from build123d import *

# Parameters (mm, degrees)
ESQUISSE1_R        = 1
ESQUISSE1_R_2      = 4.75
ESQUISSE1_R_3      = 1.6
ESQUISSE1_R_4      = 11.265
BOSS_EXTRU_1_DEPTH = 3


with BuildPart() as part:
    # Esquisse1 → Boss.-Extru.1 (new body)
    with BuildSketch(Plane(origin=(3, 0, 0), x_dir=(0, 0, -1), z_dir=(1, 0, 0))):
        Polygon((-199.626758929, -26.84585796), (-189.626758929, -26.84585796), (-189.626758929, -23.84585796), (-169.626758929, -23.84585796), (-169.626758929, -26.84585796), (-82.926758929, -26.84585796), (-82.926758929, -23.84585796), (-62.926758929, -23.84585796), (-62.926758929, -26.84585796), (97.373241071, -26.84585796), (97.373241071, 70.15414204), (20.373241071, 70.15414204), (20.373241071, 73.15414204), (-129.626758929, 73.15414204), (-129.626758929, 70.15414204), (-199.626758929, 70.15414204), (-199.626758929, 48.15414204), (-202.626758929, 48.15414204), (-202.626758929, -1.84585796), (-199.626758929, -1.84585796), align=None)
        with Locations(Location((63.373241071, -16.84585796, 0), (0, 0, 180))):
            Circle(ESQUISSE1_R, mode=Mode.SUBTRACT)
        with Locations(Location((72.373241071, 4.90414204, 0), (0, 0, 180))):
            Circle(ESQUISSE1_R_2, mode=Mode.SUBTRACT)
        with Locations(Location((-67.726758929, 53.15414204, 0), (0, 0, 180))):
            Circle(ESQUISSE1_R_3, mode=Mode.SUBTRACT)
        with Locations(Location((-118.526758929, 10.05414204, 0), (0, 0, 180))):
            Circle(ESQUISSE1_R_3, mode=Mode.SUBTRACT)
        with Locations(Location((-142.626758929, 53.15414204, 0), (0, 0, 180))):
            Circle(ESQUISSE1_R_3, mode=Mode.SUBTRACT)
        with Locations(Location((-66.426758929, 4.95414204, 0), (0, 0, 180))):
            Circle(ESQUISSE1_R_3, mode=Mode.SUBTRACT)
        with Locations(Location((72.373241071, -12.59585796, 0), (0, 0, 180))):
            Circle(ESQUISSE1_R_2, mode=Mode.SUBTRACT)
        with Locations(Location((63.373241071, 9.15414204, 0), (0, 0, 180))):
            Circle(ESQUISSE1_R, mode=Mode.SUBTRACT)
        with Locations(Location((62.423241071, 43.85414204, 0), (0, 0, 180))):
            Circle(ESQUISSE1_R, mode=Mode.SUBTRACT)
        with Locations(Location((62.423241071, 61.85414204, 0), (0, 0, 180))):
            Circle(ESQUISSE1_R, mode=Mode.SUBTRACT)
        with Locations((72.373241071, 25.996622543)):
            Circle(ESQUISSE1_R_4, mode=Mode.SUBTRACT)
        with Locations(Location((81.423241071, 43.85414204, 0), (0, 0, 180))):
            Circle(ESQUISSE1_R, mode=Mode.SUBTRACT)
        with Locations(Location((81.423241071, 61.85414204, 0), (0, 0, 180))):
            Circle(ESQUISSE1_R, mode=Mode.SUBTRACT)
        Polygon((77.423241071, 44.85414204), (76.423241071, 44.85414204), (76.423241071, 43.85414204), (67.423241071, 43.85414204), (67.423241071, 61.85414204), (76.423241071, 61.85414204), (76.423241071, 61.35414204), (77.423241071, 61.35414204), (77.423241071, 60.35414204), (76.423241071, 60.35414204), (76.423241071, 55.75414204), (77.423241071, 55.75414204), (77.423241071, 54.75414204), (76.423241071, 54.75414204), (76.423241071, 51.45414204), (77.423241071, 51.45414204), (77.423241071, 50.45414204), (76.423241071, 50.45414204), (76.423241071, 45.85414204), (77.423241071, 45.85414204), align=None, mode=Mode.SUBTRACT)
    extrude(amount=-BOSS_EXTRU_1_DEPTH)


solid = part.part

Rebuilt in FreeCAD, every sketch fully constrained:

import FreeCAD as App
import Part
import Sketcher
Q = App.Units.Quantity


def add_polygon(sketch, points):
    """Adds a closed chain of lines whose ends are joined by coincident constraints."""
    first, n = sketch.GeometryCount, len(points)
    for a, b in zip(points, points[1:] + points[:1]):
        sketch.addGeometry(Part.LineSegment(App.Vector(*a, 0), App.Vector(*b, 0)), False)
    for i in range(n):
        sketch.addConstraint(Sketcher.Constraint("Coincident", first + i, 2, first + (i + 1) % n, 1))

doc = App.newDocument("Part")
body = doc.addObject("PartDesign::Body", "Body")

# Sketch on YZ plane
sketch1 = body.newObject("Sketcher::SketchObject", "Sketch")
sketch1.AttachmentSupport = (doc.getObject("YZ_Plane"), [""])
sketch1.MapMode = "FlatFace"
sketch1.AttachmentOffset = App.Placement(App.Vector(0, 0, 3), App.Rotation())
add_polygon(sketch1, [(-26.8, 199.6), (-26.8, 189.6), (-23.8, 189.6), (-23.8, 169.6), (-26.8, 169.6), (-26.8, 82.9), (-23.8, 82.9), (-23.8, 62.9), (-26.8, 62.9), (-26.8, -97.4), (70.2, -97.4), (70.2, -20.4), (73.2, -20.4), (73.2, 129.6), (70.2, 129.6), (70.2, 199.6), (48.2, 199.6), (48.2, 202.6), (-1.8, 202.6), (-1.8, 199.6)])  # lines 0-19
sketch1.addGeometry(Part.Circle(App.Vector(10.1, 118.5, 0), App.Vector(0, 0, 1), 1.6), False)  # 20
sketch1.addGeometry(Part.Circle(App.Vector(5, 66.4, 0), App.Vector(0, 0, 1), 1.6), False)  # 21
sketch1.addGeometry(Part.Circle(App.Vector(-16.8, -63.4, 0), App.Vector(0, 0, 1), 1), False)  # 22
sketch1.addGeometry(Part.Circle(App.Vector(-12.6, -72.4, 0), App.Vector(0, 0, 1), 4.8), False)  # 23
sketch1.addGeometry(Part.Circle(App.Vector(4.9, -72.4, 0), App.Vector(0, 0, 1), 4.8), False)  # 24
sketch1.addGeometry(Part.Circle(App.Vector(9.2, -63.4, 0), App.Vector(0, 0, 1), 1), False)  # 25
sketch1.addGeometry(Part.Circle(App.Vector(53.2, 142.6, 0), App.Vector(0, 0, 1), 1.6), False)  # 26
sketch1.addGeometry(Part.Circle(App.Vector(53.2, 67.7, 0), App.Vector(0, 0, 1), 1.6), False)  # 27
sketch1.addGeometry(Part.Circle(App.Vector(26, -72.4, 0), App.Vector(0, 0, 1), 11.3), False)  # 28
sketch1.addGeometry(Part.Circle(App.Vector(43.9, -62.4, 0), App.Vector(0, 0, 1), 1), False)  # 29
sketch1.addGeometry(Part.Circle(App.Vector(43.9, -81.4, 0), App.Vector(0, 0, 1), 1), False)  # 30
add_polygon(sketch1, [(45.9, -77.4), (44.9, -77.4), (44.9, -76.4), (43.9, -76.4), (43.9, -67.4), (61.9, -67.4), (61.9, -76.4), (61.4, -76.4), (61.4, -77.4), (60.4, -77.4), (60.4, -76.4), (55.8, -76.4), (55.8, -77.4), (54.8, -77.4), (54.8, -76.4), (51.5, -76.4), (51.5, -77.4), (50.5, -77.4), (50.5, -76.4), (45.9, -76.4)])  # lines 31-50
sketch1.addGeometry(Part.Circle(App.Vector(61.9, -62.4, 0), App.Vector(0, 0, 1), 1), False)  # 51
sketch1.addGeometry(Part.Circle(App.Vector(61.9, -81.4, 0), App.Vector(0, 0, 1), 1), False)  # 52
sketch1.addConstraint(Sketcher.Constraint("Vertical", 0))
sketch1.addConstraint(Sketcher.Constraint("Horizontal", 1))
sketch1.addConstraint(Sketcher.Constraint("Vertical", 2))
sketch1.addConstraint(Sketcher.Constraint("Horizontal", 3))
sketch1.addConstraint(Sketcher.Constraint("Vertical", 4))
sketch1.addConstraint(Sketcher.Constraint("Horizontal", 5))
sketch1.addConstraint(Sketcher.Constraint("Vertical", 6))
sketch1.addConstraint(Sketcher.Constraint("Horizontal", 7))
sketch1.addConstraint(Sketcher.Constraint("Vertical", 8))
sketch1.addConstraint(Sketcher.Constraint("Horizontal", 9))
sketch1.addConstraint(Sketcher.Constraint("Vertical", 10))
sketch1.addConstraint(Sketcher.Constraint("Horizontal", 11))
sketch1.addConstraint(Sketcher.Constraint("Vertical", 12))
sketch1.addConstraint(Sketcher.Constraint("Horizontal", 13))
sketch1.addConstraint(Sketcher.Constraint("Vertical", 14))
sketch1.addConstraint(Sketcher.Constraint("Horizontal", 15))
sketch1.addConstraint(Sketcher.Constraint("Vertical", 16))
sketch1.addConstraint(Sketcher.Constraint("Horizontal", 17))
sketch1.addConstraint(Sketcher.Constraint("Vertical", 18))
sketch1.addConstraint(Sketcher.Constraint("Horizontal", 19))
sketch1.addConstraint(Sketcher.Constraint("Horizontal", 31))
sketch1.addConstraint(Sketcher.Constraint("Vertical", 32))
sketch1.addConstraint(Sketcher.Constraint("Horizontal", 33))
sketch1.addConstraint(Sketcher.Constraint("Vertical", 34))
sketch1.addConstraint(Sketcher.Constraint("Horizontal", 35))
sketch1.addConstraint(Sketcher.Constraint("Vertical", 36))
sketch1.addConstraint(Sketcher.Constraint("Horizontal", 37))
sketch1.addConstraint(Sketcher.Constraint("Vertical", 38))
sketch1.addConstraint(Sketcher.Constraint("Horizontal", 39))
sketch1.addConstraint(Sketcher.Constraint("Vertical", 40))
sketch1.addConstraint(Sketcher.Constraint("Horizontal", 41))
sketch1.addConstraint(Sketcher.Constraint("Vertical", 42))
sketch1.addConstraint(Sketcher.Constraint("Horizontal", 43))
sketch1.addConstraint(Sketcher.Constraint("Vertical", 44))
sketch1.addConstraint(Sketcher.Constraint("Horizontal", 45))
sketch1.addConstraint(Sketcher.Constraint("Vertical", 46))
sketch1.addConstraint(Sketcher.Constraint("Horizontal", 47))
sketch1.addConstraint(Sketcher.Constraint("Vertical", 48))
sketch1.addConstraint(Sketcher.Constraint("Horizontal", 49))
sketch1.addConstraint(Sketcher.Constraint("Vertical", 50))
sketch1.addConstraint(Sketcher.Constraint("Equal", 20, 21))
sketch1.addConstraint(Sketcher.Constraint("Equal", 23, 24))
sketch1.addConstraint(Sketcher.Constraint("Equal", 22, 25))
sketch1.addConstraint(Sketcher.Constraint("Equal", 21, 26))
sketch1.addConstraint(Sketcher.Constraint("Equal", 26, 27))
sketch1.addConstraint(Sketcher.Constraint("Equal", 25, 29))
sketch1.addConstraint(Sketcher.Constraint("Equal", 29, 30))
sketch1.addConstraint(Sketcher.Constraint("Equal", 30, 51))
sketch1.addConstraint(Sketcher.Constraint("Equal", 51, 52))
sketch1.addConstraint(Sketcher.Constraint("Horizontal", 23, 3, 24, 3))
sketch1.addConstraint(Sketcher.Constraint("Horizontal", 22, 3, 25, 3))
sketch1.addConstraint(Sketcher.Constraint("Horizontal", 24, 3, 28, 3))
sketch1.addConstraint(Sketcher.Constraint("Horizontal", 29, 3, 51, 3))
sketch1.addConstraint(Sketcher.Constraint("Horizontal", 30, 3, 52, 3))
sketch1.addConstraint(Sketcher.Constraint("Horizontal", 15, 2, 18, 2))
sketch1.addConstraint(Sketcher.Constraint("Horizontal", 33, 2, 36, 2))
sketch1.addConstraint(Sketcher.Constraint("Horizontal", 31, 2, 38, 2))
sketch1.addConstraint(Sketcher.Constraint("Horizontal", 37, 2, 40, 2))
sketch1.addConstraint(Sketcher.Constraint("Horizontal", 39, 2, 42, 2))
sketch1.addConstraint(Sketcher.Constraint("Horizontal", 41, 2, 44, 2))
sketch1.addConstraint(Sketcher.Constraint("Horizontal", 43, 2, 46, 2))
sketch1.addConstraint(Sketcher.Constraint("Horizontal", 45, 2, 48, 2))
sketch1.addConstraint(Sketcher.Constraint("Vertical", 26, 3, 27, 3))
sketch1.addConstraint(Sketcher.Constraint("Vertical", 29, 3, 30, 3))
sketch1.addConstraint(Sketcher.Constraint("Vertical", 51, 3, 52, 3))
sketch1.addConstraint(Sketcher.Constraint("Vertical", 0, 2, 3, 2))
sketch1.addConstraint(Sketcher.Constraint("Vertical", 2, 2, 5, 2))
sketch1.addConstraint(Sketcher.Constraint("Vertical", 4, 2, 7, 2))
sketch1.addConstraint(Sketcher.Constraint("Vertical", 10, 2, 13, 2))
sketch1.addConstraint(Sketcher.Constraint("Vertical", 30, 3, 33, 2))
sketch1.addConstraint(Sketcher.Constraint("Vertical", 52, 3, 35, 2))
sketch1.addConstraint(Sketcher.Constraint("Equal", 7, 11))
sketch1.addConstraint(Sketcher.Constraint("Equal", 31, 33))
sketch1.addConstraint(Sketcher.Constraint("Equal", 33, 39))
sketch1.addConstraint(Sketcher.Constraint("Equal", 39, 43))
sketch1.addConstraint(Sketcher.Constraint("Equal", 43, 47))
sketch1.addConstraint(Sketcher.Constraint("Equal", 41, 49))
sketch1.addConstraint(Sketcher.Constraint("Equal", 2, 6))
sketch1.addConstraint(Sketcher.Constraint("Equal", 13, 16))
sketch1.addConstraint(Sketcher.Constraint("Equal", 47, 32))
sketch1.addConstraint(Sketcher.Constraint("Diameter", 22, Q("2 mm")))
sketch1.addConstraint(Sketcher.Constraint("Diameter", 20, Q("3.2 mm")))
sketch1.addConstraint(Sketcher.Constraint("Diameter", 23, Q("9.5 mm")))
sketch1.addConstraint(Sketcher.Constraint("Diameter", 28, Q("22.53 mm")))
sketch1.addConstraint(Sketcher.Constraint("DistanceX", 1, 1, 1, 2, Q("3 mm")))
sketch1.addConstraint(Sketcher.Constraint("DistanceX", 9, 1, 9, 2, Q("97 mm")))
sketch1.addConstraint(Sketcher.Constraint("DistanceX", 15, 2, 15, 1, Q("22 mm")))
sketch1.addConstraint(Sketcher.Constraint("DistanceX", 17, 2, 17, 1, Q("50 mm")))
sketch1.addConstraint(Sketcher.Constraint("DistanceX", 31, 2, 31, 1, Q("1 mm")))
sketch1.addConstraint(Sketcher.Constraint("DistanceX", 35, 1, 35, 2, Q("18 mm")))
sketch1.addConstraint(Sketcher.Constraint("DistanceY", 0, 2, 0, 1, Q("10 mm")))
sketch1.addConstraint(Sketcher.Constraint("DistanceY", 2, 2, 2, 1, Q("20 mm")))
sketch1.addConstraint(Sketcher.Constraint("DistanceY", 10, 1, 10, 2, Q("77 mm")))
sketch1.addConstraint(Sketcher.Constraint("DistanceY", 12, 1, 12, 2, Q("150 mm")))
sketch1.addConstraint(Sketcher.Constraint("DistanceY", 14, 1, 14, 2, Q("70 mm")))
sketch1.addConstraint(Sketcher.Constraint("DistanceY", 34, 1, 34, 2, Q("9 mm")))
sketch1.addConstraint(Sketcher.Constraint("DistanceX", 37, 2, 37, 1, Q("0.5 mm")))
sketch1.addConstraint(Sketcher.Constraint("DistanceX", 41, 2, 41, 1, Q("4.6 mm")))
sketch1.addConstraint(Sketcher.Constraint("DistanceY", 4, 2, 4, 1, Q("86.7 mm")))
sketch1.addConstraint(Sketcher.Constraint("DistanceY", 23, 3, 22, 3, Q("9 mm")))
sketch1.addConstraint(Sketcher.Constraint("DistanceX", 22, 3, 25, 3, Q("26 mm")))
sketch1.addConstraint(Sketcher.Constraint("DistanceX", 25, 3, 26, 3, Q("44 mm")))
sketch1.addConstraint(Sketcher.Constraint("DistanceY", 25, 3, 26, 3, Q("206 mm")))
sketch1.addConstraint(Sketcher.Constraint("DistanceY", 30, 3, 29, 3, Q("19 mm")))
sketch1.addConstraint(Sketcher.Constraint("DistanceX", 0, 2, 26, 3, Q("80 mm")))
sketch1.addConstraint(Sketcher.Constraint("DistanceY", 26, 3, 0, 2, Q("47 mm")))
sketch1.addConstraint(Sketcher.Constraint("DistanceY", 30, 3, 31, 2, Q("4 mm")))
sketch1.addConstraint(Sketcher.Constraint("DistanceX", 21, 3, 20, 3, Q("5.1 mm")))
sketch1.addConstraint(Sketcher.Constraint("DistanceY", 21, 3, 20, 3, Q("52.1 mm")))
sketch1.addConstraint(Sketcher.Constraint("DistanceX", 22, 3, 21, 3, Q("21.8 mm")))
sketch1.addConstraint(Sketcher.Constraint("DistanceY", 22, 3, 21, 3, Q("129.8 mm")))
sketch1.addConstraint(Sketcher.Constraint("DistanceX", 23, 3, 24, 3, Q("17.5 mm")))
sketch1.addConstraint(Sketcher.Constraint("DistanceY", 21, 3, 27, 3, Q("1.3 mm")))
sketch1.addConstraint(Sketcher.Constraint("DistanceX", 25, 3, 29, 3, Q("34.7 mm")))
sketch1.addConstraint(Sketcher.Constraint("DistanceX", 22, 3, 23, 3, Q("4.25 mm")))
sketch1.addConstraint(Sketcher.Constraint("DistanceY", 28, 3, 29, 3, Q("9.95 mm")))
sketch1.addConstraint(Sketcher.Constraint("DistanceY", -1, 1, 20, 3, Q("118.526759 mm")))
sketch1.addConstraint(Sketcher.Constraint("DistanceX", 25, 3, 28, 3, Q("16.842481 mm")))
sketch1.addConstraint(Sketcher.Constraint("DistanceX", -1, 1, 20, 3, Q("10.054142 mm")))
pad1 = body.newObject("PartDesign::Pad", "Pad")
pad1.Profile = sketch1
pad1.Length = 3
pad1.Reversed = True

doc.recompute()
